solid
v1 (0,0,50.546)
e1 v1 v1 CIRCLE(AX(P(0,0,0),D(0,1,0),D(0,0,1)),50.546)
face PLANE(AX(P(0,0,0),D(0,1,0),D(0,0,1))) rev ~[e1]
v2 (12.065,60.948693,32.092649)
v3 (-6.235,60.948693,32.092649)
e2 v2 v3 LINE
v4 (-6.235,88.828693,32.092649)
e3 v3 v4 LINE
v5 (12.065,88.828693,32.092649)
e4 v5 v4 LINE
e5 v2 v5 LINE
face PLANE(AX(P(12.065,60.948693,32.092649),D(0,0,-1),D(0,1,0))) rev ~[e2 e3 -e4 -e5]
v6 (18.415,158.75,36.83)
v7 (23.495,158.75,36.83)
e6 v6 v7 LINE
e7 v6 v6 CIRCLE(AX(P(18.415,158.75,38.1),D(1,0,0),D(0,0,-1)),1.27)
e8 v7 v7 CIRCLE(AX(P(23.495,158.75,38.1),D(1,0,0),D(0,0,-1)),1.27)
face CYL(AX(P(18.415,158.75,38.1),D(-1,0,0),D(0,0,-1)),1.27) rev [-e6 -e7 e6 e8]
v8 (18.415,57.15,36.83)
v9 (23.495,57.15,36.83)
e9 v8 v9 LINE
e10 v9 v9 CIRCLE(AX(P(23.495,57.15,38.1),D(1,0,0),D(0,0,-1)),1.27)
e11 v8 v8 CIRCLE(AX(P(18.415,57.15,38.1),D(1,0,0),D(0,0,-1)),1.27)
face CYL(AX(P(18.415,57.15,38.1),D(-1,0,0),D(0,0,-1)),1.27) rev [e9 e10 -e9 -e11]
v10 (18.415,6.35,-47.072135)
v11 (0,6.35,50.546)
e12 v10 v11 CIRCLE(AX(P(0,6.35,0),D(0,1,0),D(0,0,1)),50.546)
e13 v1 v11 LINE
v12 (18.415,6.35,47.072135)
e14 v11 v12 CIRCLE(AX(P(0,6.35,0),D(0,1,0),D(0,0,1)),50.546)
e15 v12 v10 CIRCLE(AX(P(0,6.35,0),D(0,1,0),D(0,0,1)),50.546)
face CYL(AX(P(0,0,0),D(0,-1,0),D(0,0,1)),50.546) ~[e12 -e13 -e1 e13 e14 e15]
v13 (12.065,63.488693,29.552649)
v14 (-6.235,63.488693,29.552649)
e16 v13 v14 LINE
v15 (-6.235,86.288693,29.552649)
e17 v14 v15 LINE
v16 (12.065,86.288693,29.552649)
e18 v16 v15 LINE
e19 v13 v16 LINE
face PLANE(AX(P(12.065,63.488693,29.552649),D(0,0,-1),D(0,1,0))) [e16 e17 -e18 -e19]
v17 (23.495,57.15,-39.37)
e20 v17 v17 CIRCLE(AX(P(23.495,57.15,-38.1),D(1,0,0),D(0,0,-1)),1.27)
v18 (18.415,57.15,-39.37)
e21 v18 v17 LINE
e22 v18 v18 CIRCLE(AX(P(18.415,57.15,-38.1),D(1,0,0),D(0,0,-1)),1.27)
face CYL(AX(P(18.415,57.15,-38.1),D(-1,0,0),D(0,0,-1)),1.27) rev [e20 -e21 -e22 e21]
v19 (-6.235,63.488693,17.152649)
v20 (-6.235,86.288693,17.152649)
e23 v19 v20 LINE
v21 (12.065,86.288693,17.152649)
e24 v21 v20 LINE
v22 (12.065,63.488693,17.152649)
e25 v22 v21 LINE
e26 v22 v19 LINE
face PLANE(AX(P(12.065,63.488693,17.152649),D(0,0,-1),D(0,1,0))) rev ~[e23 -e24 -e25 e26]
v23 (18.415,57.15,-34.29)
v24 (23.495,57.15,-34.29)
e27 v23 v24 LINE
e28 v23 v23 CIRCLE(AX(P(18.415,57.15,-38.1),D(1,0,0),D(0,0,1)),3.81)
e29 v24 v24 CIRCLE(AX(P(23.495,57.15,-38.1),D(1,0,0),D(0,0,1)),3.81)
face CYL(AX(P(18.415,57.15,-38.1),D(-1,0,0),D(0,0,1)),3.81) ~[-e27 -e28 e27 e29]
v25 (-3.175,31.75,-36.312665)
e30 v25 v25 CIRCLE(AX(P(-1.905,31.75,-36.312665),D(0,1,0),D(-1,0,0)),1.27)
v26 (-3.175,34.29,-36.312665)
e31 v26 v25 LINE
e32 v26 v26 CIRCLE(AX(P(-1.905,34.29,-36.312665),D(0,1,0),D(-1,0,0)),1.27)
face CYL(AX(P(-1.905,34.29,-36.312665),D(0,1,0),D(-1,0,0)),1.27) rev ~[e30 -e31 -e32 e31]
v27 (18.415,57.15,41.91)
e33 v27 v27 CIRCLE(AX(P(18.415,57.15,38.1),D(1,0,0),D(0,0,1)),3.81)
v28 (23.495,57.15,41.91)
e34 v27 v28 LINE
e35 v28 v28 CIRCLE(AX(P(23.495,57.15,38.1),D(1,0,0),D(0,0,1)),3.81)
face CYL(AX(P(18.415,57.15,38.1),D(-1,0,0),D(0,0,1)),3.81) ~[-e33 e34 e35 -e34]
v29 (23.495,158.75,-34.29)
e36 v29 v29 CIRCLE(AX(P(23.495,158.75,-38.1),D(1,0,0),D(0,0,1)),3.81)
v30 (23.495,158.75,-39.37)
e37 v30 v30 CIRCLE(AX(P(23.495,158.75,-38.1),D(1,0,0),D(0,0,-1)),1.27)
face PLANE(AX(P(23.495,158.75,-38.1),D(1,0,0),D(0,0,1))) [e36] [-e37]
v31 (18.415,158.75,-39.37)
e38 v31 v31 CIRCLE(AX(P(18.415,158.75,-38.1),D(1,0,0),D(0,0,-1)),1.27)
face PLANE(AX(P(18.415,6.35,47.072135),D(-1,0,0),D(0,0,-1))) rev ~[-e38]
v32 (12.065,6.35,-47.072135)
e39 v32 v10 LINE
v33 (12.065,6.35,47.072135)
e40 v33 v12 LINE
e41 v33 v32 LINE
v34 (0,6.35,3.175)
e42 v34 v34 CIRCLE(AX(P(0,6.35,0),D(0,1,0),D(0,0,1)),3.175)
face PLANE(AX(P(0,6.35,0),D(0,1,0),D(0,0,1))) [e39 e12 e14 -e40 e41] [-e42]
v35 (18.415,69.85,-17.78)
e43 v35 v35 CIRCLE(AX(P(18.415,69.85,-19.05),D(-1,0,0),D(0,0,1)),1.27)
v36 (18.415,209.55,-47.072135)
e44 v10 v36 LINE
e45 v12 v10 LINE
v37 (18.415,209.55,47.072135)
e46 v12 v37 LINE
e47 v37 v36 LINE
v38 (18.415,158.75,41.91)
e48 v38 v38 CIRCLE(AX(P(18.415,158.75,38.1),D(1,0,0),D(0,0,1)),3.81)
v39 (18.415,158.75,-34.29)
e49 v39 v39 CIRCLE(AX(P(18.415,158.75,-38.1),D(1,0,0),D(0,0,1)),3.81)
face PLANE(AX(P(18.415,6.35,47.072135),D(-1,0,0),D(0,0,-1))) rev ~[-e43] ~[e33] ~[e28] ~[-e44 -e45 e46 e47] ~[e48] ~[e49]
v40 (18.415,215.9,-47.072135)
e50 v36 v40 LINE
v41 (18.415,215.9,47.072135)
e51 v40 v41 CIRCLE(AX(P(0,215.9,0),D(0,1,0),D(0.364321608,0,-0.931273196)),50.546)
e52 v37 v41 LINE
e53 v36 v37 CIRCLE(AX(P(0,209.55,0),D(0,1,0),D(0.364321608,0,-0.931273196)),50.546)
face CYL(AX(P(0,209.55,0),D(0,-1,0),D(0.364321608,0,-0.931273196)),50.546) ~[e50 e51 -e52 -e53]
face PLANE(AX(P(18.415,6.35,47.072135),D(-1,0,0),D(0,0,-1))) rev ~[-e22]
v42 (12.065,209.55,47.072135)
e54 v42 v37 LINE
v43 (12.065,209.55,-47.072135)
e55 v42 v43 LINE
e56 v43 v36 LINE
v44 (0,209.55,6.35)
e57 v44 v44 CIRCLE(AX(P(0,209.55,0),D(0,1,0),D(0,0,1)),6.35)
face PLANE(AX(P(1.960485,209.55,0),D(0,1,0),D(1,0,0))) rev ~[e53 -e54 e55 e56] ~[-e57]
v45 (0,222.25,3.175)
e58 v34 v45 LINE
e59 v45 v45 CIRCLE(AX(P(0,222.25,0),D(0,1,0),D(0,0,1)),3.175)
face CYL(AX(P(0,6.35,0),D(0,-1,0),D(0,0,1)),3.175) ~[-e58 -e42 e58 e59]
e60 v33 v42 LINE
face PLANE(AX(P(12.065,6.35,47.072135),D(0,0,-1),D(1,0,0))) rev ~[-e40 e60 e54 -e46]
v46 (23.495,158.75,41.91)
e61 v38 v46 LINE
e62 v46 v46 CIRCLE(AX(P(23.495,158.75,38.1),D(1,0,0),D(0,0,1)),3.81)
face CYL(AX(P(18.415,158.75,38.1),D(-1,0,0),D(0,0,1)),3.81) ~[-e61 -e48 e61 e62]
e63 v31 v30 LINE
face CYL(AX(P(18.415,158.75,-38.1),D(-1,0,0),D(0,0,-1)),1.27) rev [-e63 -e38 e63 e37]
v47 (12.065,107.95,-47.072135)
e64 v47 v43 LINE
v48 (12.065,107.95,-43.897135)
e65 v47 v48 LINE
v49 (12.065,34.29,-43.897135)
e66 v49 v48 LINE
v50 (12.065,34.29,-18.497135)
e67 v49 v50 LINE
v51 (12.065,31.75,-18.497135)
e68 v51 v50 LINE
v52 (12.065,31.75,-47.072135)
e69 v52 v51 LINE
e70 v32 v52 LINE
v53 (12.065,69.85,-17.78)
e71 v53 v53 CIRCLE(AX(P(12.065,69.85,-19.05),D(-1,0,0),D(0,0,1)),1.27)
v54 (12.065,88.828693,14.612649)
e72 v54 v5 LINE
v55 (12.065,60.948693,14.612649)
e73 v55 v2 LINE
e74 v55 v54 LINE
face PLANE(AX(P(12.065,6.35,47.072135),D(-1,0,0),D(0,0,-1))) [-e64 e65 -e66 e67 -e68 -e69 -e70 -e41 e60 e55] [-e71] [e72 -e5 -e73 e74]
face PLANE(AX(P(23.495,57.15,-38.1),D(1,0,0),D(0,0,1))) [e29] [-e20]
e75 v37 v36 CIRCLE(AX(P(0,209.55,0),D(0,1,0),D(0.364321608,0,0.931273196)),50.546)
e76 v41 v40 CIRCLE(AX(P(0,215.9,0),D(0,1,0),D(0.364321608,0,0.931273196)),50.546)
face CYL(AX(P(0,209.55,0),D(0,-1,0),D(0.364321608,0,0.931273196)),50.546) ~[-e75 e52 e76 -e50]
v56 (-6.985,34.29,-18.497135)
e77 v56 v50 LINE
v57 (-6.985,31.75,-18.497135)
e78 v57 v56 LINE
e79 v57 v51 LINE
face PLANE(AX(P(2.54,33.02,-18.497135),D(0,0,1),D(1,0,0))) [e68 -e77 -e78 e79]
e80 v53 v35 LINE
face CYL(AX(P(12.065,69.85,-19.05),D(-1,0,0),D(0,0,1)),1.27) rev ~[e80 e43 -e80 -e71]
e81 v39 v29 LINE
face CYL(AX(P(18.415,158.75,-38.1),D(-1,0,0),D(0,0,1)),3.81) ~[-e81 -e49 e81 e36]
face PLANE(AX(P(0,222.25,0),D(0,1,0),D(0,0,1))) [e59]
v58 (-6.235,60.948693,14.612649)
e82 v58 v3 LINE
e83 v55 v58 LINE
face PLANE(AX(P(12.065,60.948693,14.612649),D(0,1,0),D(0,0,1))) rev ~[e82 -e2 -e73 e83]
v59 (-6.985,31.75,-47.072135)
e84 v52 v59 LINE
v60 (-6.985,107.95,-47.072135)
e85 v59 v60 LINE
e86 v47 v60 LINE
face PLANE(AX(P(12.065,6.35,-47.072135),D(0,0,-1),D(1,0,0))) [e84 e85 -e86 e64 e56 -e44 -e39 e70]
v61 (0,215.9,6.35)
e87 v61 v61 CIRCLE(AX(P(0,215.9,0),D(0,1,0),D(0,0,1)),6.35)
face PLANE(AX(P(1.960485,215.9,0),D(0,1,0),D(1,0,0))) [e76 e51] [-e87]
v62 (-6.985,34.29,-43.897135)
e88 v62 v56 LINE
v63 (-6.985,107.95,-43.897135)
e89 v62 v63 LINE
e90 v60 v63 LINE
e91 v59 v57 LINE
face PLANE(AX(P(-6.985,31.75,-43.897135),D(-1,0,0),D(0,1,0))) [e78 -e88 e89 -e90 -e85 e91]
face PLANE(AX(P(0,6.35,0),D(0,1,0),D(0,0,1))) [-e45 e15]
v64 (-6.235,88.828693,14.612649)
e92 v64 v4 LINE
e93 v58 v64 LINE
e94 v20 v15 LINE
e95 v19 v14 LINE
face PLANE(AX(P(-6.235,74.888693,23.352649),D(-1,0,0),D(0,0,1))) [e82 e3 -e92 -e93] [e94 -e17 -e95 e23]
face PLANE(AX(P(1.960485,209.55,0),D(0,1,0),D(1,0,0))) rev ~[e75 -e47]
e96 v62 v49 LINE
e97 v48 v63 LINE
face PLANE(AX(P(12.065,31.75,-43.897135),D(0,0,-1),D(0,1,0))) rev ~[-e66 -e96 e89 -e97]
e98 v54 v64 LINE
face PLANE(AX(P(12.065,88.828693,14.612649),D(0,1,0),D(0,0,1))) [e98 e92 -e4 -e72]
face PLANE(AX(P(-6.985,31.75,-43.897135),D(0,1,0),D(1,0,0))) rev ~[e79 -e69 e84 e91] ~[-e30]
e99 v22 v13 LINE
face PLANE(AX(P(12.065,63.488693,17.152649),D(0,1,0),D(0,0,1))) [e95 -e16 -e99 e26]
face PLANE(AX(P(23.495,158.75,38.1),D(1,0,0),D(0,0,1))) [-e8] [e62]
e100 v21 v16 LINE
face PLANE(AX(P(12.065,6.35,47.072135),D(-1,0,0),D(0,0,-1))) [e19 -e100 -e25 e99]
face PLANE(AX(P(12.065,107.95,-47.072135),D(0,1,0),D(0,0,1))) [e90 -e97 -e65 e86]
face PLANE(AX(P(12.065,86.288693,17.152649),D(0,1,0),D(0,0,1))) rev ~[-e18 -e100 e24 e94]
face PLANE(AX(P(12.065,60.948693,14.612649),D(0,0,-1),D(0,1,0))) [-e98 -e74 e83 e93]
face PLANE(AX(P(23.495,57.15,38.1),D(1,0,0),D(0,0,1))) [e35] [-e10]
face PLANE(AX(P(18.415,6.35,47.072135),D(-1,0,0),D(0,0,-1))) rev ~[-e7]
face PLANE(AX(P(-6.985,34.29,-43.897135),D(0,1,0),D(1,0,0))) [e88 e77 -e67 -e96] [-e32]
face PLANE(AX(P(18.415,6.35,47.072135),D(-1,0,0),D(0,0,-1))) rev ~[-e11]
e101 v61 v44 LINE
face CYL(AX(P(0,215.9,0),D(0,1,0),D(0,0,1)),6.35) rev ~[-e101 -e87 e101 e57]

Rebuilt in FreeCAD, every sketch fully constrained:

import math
import FreeCAD as App
import Part
import Sketcher
Q = App.Units.Quantity


def add_polygon(sketch, points):
    """Adds a closed chain of lines whose ends are joined by coincident constraints."""
    first, n = sketch.GeometryCount, len(points)
    for a, b in zip(points, points[1:] + points[:1]):
        sketch.addGeometry(Part.LineSegment(App.Vector(*a, 0), App.Vector(*b, 0)), False)
    for i in range(n):
        sketch.addConstraint(Sketcher.Constraint("Coincident", first + i, 2, first + (i + 1) % n, 1))

doc = App.newDocument("Part")
body = doc.addObject("PartDesign::Body", "Body")

sketch1 = body.newObject("Sketcher::SketchObject", "Sketch")
sketch1.AttachmentSupport = (doc.getObject("XZ_Plane"), [""])
sketch1.MapMode = "FlatFace"
sketch1.addGeometry(Part.Circle(App.Vector(0, 0, 0), App.Vector(0, 0, 1), 51), False)
sketch1.addConstraint([
    Sketcher.Constraint("Coincident", 0, 3, -1, 1),
    Sketcher.Constraint("Diameter", 0, Q("3.98 in")),
])
pad1 = body.newObject("PartDesign::Pad", "Pad")
pad1.Profile = sketch1
pad1.Length = Q("0.25 in")
pad1.Reversed = True

sketch2 = body.newObject("Sketcher::SketchObject", "Sketch001")
sketch2.AttachmentSupport = (doc.getObject("XZ_Plane"), [""])
sketch2.MapMode = "FlatFace"
sketch2.AttachmentOffset = App.Placement(App.Vector(0, 0, -0.25 * 25.4), App.Rotation())
add_polygon(sketch2, [(12, -47), (12, 47), (18, 47), (18, -47)])
sketch2.addConstraint([
    Sketcher.Constraint("Vertical", 0),
    Sketcher.Constraint("Horizontal", 1),
    Sketcher.Constraint("Vertical", 2),
    Sketcher.Constraint("Horizontal", 3),
    Sketcher.Constraint("DistanceX", 1, 1, 1, 2, Q("0.25 in")),
    Sketcher.Constraint("DistanceX", -1, 1, 0, 2, Q("0.475 in")),
    Sketcher.Constraint("DistanceY", 0, 1, 0, 2, 94.14427),
    Sketcher.Constraint("DistanceY", -1, 1, 0, 2, 47.072135),
])
pad2 = body.newObject("PartDesign::Pad", "Pad001")
pad2.Profile = sketch2
pad2.Length = Q("8 in")
pad2.Reversed = True

sketch3 = body.newObject("Sketcher::SketchObject", "Sketch002")
sketch3.AttachmentSupport = (doc.getObject("XZ_Plane"), [""])
sketch3.MapMode = "FlatFace"
sketch3.AttachmentOffset = App.Placement(App.Vector(0, 0, -8.25 * 25.4), App.Rotation())
sketch3.addGeometry([
    Part.ArcOfCircle(Part.Circle(App.Vector(0, 0, 0), App.Vector(0, 0, 1), 51), math.radians(69), math.radians(291)),
    Part.ArcOfCircle(Part.Circle(App.Vector(0, 0, 0), App.Vector(0, 0, 1), 51), math.radians(-69), math.radians(69)),
], False)
sketch3.addConstraint([
    Sketcher.Constraint("Tangent", 0, 1, 1, 2),
    Sketcher.Constraint("Coincident", 1, 1, 0, 2),
    Sketcher.Constraint("Coincident", 0, 3, -1, 1),
    Sketcher.Constraint("Vertical", 0, 1, 1, 1),
    Sketcher.Constraint("Radius", 0, Q("1.99 in")),
    Sketcher.Constraint("DistanceX", -1, 1, 0, 1, Q("0.725 in")),
])
pad3 = body.newObject("PartDesign::Pad", "Pad002")
pad3.Profile = sketch3
pad3.Length = Q("0.25 in")
pad3.Reversed = True

sketch4 = body.newObject("Sketcher::SketchObject", "Sketch003")
sketch4.AttachmentSupport = (doc.getObject("XZ_Plane"), [""])
sketch4.MapMode = "FlatFace"
sketch4.AttachmentOffset = App.Placement(App.Vector(0, 0, -8.5 * 25.4), App.Rotation())
sketch4.addGeometry(Part.Circle(App.Vector(0, 0, 0), App.Vector(0, 0, 1), 6), False)
sketch4.addConstraint([
    Sketcher.Constraint("Coincident", 0, 3, -1, 1),
    Sketcher.Constraint("Diameter", 0, Q("0.5 in")),
])
pocket1 = body.newObject("PartDesign::Pocket", "Pocket")
pocket1.Profile = sketch4
pocket1.Type = "UpToFirst"
pocket1.Reversed = True

sketch5 = body.newObject("Sketcher::SketchObject", "Sketch004")
sketch5.AttachmentSupport = (doc.getObject("XZ_Plane"), [""])
sketch5.MapMode = "FlatFace"
sketch5.AttachmentOffset = App.Placement(App.Vector(0, 0, -0.25 * 25.4), App.Rotation())
sketch5.addGeometry(Part.Circle(App.Vector(0, 0, 0), App.Vector(0, 0, 1), 3.2), False)
sketch5.addConstraint([
    Sketcher.Constraint("Coincident", 0, 3, -1, 1),
    Sketcher.Constraint("Diameter", 0, Q("0.25 in")),
])
pad4 = body.newObject("PartDesign::Pad", "Pad003")
pad4.Profile = sketch5
pad4.Length = Q("8.5 in")
pad4.Reversed = True

sketch6 = body.newObject("Sketcher::SketchObject", "Sketch005")
sketch6.AttachmentSupport = (doc.getObject("YZ_Plane"), [""])
sketch6.MapMode = "FlatFace"
sketch6.AttachmentOffset = App.Placement(App.Vector(0, 0, 0.475 * 25.4), App.Rotation())
sketch6.addGeometry(Part.Circle(App.Vector(69.8, -19.1, 0), App.Vector(0, 0, 1), 1.3), False)
sketch6.addConstraint([
    Sketcher.Constraint("Diameter", 0, Q("0.1 in")),
    Sketcher.Constraint("DistanceX", -1, 1, 0, 3, Q("2.75 in")),
    Sketcher.Constraint("DistanceY", 0, 3, -1, 1, Q("0.75 in")),
])
pocket2 = body.newObject("PartDesign::Pocket", "Pocket001")
pocket2.Profile = sketch6
pocket2.Type = "ThroughAll"
pocket2.Reversed = True

sketch7 = body.newObject("Sketcher::SketchObject", "Sketch006")
sketch7.AttachmentSupport = (doc.getObject("YZ_Plane"), [""])
sketch7.MapMode = "FlatFace"
sketch7.AttachmentOffset = App.Placement(App.Vector(0, 0, 0.475 * 25.4), App.Rotation())
add_polygon(sketch7, [(108, -47.1), (31.8, -47.1), (31.8, -43.9), (108, -43.9)])
sketch7.addConstraint([
    Sketcher.Constraint("Horizontal", 0),
    Sketcher.Constraint("Vertical", 1),
    Sketcher.Constraint("Horizontal", 2),
    Sketcher.Constraint("Vertical", 3),
    Sketcher.Constraint("DistanceX", 0, 2, 0, 1, Q("3 in")),
    Sketcher.Constraint("DistanceY", 1, 1, 1, 2, Q("0.125 in")),
    Sketcher.Constraint("DistanceX", -1, 1, 0, 2, Q("1.25 in")),
    Sketcher.Constraint("DistanceY", 0, 2, -1, 1, 47.072135),
])
pad5 = body.newObject("PartDesign::Pad", "Pad004")
pad5.Profile = sketch7
pad5.Length = Q("0.75 in")
pad5.Reversed = True

sketch8 = body.newObject("Sketcher::SketchObject", "Sketch007")
sketch8.AttachmentSupport = (doc.getObject("XY_Plane"), [""])
sketch8.MapMode = "FlatFace"
sketch8.AttachmentOffset = App.Placement(App.Vector(0, 0, -43.897135), App.Rotation())
add_polygon(sketch8, [(-7, 34.3), (-7, 31.8), (12.1, 31.8), (12.1, 34.3)])
sketch8.addConstraint([
    Sketcher.Constraint("Vertical", 0),
    Sketcher.Constraint("Horizontal", 1),
    Sketcher.Constraint("Vertical", 2),
    Sketcher.Constraint("Horizontal", 3),
    Sketcher.Constraint("DistanceY", 0, 2, 0, 1, Q("0.1 in")),
    Sketcher.Constraint("DistanceX", 1, 1, 1, 2, Q("0.75 in")),
    Sketcher.Constraint("DistanceY", -1, 1, 0, 2, Q("1.25 in")),
    Sketcher.Constraint("DistanceX", 0, 2, -1, 1, Q("0.275 in")),
])
pad6 = body.newObject("PartDesign::Pad", "Pad005")
pad6.Profile = sketch8
pad6.Length = Q("1 in")

sketch9 = body.newObject("Sketcher::SketchObject", "Sketch008")
sketch9.AttachmentSupport = (doc.getObject("XZ_Plane"), [""])
sketch9.MapMode = "FlatFace"
sketch9.AttachmentOffset = App.Placement(App.Vector(0, 0, -1.35 * 25.4), App.Rotation())
sketch9.addGeometry(Part.Circle(App.Vector(-1.9, -36.3, 0), App.Vector(0, 0, 1), 1.3), False)
sketch9.addConstraint([
    Sketcher.Constraint("Diameter", 0, Q("0.1 in")),
    Sketcher.Constraint("DistanceX", 0, 3, -1, 1, Q("0.075 in")),
    Sketcher.Constraint("DistanceY", 0, 3, -1, 1, 36.312665),
])
pocket3 = body.newObject("PartDesign::Pocket", "Pocket002")
pocket3.Profile = sketch9
pocket3.Type = "UpToFirst"
pocket3.Reversed = True

sketch10 = body.newObject("Sketcher::SketchObject", "Sketch009")
sketch10.AttachmentSupport = (doc.getObject("YZ_Plane"), [""])
sketch10.MapMode = "FlatFace"
sketch10.AttachmentOffset = App.Placement(App.Vector(0, 0, 0.475 * 25.4), App.Rotation())
add_polygon(sketch10, [(89, 15), (61, 15), (61, 32), (89, 32)])
add_polygon(sketch10, [(63, 30), (63, 17), (86, 17), (86, 30)])
sketch10.addConstraint([
    Sketcher.Constraint("Horizontal", 0),
    Sketcher.Constraint("Vertical", 1),
    Sketcher.Constraint("Horizontal", 2),
    Sketcher.Constraint("Vertical", 3),
    Sketcher.Constraint("Vertical", 4),
    Sketcher.Constraint("Horizontal", 5),
    Sketcher.Constraint("Vertical", 6),
    Sketcher.Constraint("Horizontal", 7),
    Sketcher.Constraint("DistanceX", 0, 2, 4, 2, Q("0.1 in")),
    Sketcher.Constraint("DistanceY", 0, 2, 4, 2, Q("0.1 in")),
    Sketcher.Constraint("DistanceX", 5, 2, 3, 2, Q("0.1 in")),
    Sketcher.Constraint("DistanceY", 6, 2, 2, 2, Q("0.1 in")),
    Sketcher.Constraint("DistanceX", 0, 2, 0, 1, 27.88),
    Sketcher.Constraint("DistanceY", 1, 1, 1, 2, 17.48),
    Sketcher.Constraint("DistanceY", -1, 1, 0, 2, 14.612649),
    Sketcher.Constraint("DistanceX", -1, 1, 0, 2, 60.948693),
])
pad7 = body.newObject("PartDesign::Pad", "Pad006")
pad7.Profile = sketch10
pad7.Length = 18.3
pad7.Reversed = True

sketch11 = body.newObject("Sketcher::SketchObject", "Sketch010")
sketch11.AttachmentSupport = (doc.getObject("YZ_Plane"), [""])
sketch11.MapMode = "FlatFace"
sketch11.AttachmentOffset = App.Placement(App.Vector(0, 0, 0.725 * 25.4), App.Rotation())
sketch11.addGeometry([
    Part.Circle(App.Vector(158.8, 38.1, 0), App.Vector(0, 0, 1), 3.8),
    Part.Circle(App.Vector(158.8, 38.1, 0), App.Vector(0, 0, 1), 1.3),
    Part.Circle(App.Vector(158.8, -38.1, 0), App.Vector(0, 0, 1), 3.8),
    Part.Circle(App.Vector(158.8, -38.1, 0), App.Vector(0, 0, 1), 1.3),
    Part.Circle(App.Vector(57.1, 38.1, 0), App.Vector(0, 0, 1), 3.8),
    Part.Circle(App.Vector(57.1, 38.1, 0), App.Vector(0, 0, 1), 1.3),
    Part.Circle(App.Vector(57.1, -38.1, 0), App.Vector(0, 0, 1), 3.8),
    Part.Circle(App.Vector(57.1, -38.1, 0), App.Vector(0, 0, 1), 1.3),
], False)
sketch11.addConstraint([
    Sketcher.Constraint("Coincident", 1, 3, 0, 3),
    Sketcher.Constraint("Coincident", 3, 3, 2, 3),
    Sketcher.Constraint("Coincident", 5, 3, 4, 3),
    Sketcher.Constraint("Coincident", 7, 3, 6, 3),
    Sketcher.Constraint("Equal", 0, 2),
    Sketcher.Constraint("Equal", 1, 3),
    Sketcher.Constraint("Equal", 2, 4),
    Sketcher.Constraint("Equal", 3, 5),
    Sketcher.Constraint("Equal", 4, 6),
    Sketcher.Constraint("Equal", 5, 7),
    Sketcher.Constraint("Symmetric", 0, 3, 2, 3, -1),
    Sketcher.Constraint("Symmetric", 4, 3, 6, 3, -1),
    Sketcher.Constraint("Horizontal", 1, 3, 4, 3),
    Sketcher.Constraint("Diameter", 0, Q("0.3 in")),
    Sketcher.Constraint("Diameter", 1, Q("0.1 in")),
    Sketcher.Constraint("DistanceY", 2, 3, 0, 3, Q("3 in")),
    Sketcher.Constraint("DistanceX", 4, 3, 0, 3, Q("4 in")),
    Sketcher.Constraint("DistanceX", -1, 1, 0, 3, Q("6.25 in")),
])
pad8 = body.newObject("PartDesign::Pad", "Pad007")
pad8.Profile = sketch11
pad8.Length = Q("0.2 in")

doc.recompute()
